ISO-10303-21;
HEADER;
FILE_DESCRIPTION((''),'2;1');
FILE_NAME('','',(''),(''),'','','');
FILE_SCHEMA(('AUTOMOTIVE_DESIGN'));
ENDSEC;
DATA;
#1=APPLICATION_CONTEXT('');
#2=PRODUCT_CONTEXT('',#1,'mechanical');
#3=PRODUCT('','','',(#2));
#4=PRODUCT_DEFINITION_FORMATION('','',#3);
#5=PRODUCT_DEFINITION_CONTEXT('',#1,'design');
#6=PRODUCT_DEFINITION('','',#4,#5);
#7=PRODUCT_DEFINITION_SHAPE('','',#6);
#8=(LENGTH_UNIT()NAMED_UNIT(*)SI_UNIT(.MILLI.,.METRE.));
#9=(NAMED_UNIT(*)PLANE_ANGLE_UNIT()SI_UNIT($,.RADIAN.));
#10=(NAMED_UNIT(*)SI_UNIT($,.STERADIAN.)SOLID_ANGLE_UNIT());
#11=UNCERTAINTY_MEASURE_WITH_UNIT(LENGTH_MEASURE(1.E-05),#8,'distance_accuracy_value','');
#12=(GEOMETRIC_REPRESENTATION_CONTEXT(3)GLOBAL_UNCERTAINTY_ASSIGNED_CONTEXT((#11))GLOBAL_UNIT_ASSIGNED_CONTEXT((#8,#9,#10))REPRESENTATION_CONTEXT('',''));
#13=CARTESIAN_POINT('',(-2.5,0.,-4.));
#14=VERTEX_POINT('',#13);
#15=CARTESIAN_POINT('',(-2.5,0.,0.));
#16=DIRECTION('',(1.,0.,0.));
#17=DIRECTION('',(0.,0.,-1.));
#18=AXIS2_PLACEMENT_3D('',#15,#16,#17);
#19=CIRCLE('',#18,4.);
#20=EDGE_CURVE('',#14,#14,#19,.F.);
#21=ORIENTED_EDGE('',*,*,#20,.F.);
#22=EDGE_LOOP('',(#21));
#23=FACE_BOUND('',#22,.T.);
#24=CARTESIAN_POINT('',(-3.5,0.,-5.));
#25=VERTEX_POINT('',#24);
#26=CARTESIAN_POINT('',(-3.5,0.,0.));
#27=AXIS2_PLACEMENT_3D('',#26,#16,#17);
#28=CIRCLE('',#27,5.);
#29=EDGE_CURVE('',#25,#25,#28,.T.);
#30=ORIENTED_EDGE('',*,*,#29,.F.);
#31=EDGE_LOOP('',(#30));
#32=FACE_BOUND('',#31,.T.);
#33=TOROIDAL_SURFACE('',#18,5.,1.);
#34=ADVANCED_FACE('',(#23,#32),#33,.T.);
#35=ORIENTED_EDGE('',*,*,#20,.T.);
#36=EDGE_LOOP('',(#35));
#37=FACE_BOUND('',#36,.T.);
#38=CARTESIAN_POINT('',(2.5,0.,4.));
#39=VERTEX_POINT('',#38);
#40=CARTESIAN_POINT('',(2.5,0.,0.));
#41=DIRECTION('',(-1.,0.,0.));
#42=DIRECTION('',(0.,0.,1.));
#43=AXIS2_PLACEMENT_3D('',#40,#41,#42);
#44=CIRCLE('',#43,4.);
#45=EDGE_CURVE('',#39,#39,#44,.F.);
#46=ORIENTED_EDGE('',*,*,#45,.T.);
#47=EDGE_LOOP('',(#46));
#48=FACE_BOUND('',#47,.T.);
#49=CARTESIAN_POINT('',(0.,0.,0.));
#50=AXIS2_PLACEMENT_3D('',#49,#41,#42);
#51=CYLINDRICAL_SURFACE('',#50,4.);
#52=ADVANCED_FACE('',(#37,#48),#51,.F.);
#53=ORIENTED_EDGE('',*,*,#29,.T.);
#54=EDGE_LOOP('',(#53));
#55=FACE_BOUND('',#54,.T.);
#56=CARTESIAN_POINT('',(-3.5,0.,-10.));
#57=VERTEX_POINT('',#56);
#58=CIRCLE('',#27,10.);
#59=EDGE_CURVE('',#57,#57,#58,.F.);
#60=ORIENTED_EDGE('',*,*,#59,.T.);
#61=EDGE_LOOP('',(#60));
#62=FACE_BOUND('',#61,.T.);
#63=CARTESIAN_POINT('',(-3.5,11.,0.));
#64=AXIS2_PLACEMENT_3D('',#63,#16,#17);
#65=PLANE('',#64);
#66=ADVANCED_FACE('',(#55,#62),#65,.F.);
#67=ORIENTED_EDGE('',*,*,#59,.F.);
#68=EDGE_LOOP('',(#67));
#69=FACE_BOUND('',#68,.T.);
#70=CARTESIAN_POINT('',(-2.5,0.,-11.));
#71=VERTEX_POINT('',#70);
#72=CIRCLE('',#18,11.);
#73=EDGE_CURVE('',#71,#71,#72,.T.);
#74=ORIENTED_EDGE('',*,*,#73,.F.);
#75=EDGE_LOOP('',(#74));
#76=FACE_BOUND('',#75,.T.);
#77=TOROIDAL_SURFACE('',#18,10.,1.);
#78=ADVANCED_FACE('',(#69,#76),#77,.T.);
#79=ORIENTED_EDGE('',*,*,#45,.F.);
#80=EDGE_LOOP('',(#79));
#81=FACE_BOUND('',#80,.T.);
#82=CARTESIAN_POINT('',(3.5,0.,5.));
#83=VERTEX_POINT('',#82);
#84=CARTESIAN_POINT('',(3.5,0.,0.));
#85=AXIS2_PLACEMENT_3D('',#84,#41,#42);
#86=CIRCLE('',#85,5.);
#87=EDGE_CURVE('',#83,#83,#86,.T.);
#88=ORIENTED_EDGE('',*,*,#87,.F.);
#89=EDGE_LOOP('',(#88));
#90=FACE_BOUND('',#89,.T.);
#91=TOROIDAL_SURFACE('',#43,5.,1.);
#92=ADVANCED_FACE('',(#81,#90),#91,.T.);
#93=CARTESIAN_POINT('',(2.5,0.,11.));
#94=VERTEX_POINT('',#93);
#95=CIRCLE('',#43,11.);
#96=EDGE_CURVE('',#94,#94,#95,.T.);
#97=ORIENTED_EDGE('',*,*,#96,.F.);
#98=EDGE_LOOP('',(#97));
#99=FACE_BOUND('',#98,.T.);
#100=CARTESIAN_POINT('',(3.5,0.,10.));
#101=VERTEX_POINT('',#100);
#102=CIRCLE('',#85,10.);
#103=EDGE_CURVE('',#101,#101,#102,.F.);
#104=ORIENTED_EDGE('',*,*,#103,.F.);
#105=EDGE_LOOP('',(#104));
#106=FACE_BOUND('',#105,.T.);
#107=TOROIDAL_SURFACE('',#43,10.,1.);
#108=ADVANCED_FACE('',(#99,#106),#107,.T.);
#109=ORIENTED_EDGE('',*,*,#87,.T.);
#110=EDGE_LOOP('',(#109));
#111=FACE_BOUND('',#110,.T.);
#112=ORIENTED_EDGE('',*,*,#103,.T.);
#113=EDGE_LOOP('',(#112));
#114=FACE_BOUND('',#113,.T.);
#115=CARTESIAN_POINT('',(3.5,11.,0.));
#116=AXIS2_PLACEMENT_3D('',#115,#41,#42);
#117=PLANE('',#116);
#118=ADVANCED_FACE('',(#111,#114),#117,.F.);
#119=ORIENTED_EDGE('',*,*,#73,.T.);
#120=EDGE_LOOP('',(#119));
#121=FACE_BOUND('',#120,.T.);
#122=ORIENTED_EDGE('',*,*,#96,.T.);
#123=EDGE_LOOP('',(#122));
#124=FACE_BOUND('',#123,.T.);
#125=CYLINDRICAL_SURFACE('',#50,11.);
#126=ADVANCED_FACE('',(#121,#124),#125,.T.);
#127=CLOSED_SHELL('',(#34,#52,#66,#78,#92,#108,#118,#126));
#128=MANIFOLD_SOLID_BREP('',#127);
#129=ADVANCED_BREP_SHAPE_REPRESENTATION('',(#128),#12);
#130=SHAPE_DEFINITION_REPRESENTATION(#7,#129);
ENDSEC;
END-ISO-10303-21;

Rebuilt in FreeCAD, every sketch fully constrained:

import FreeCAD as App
import Part
import Sketcher

V = App.Vector
Q = App.Units.Quantity


def edges_at(feature, points):
    """Names of the edges that pass closest to the given points."""
    edges = feature.Shape.Edges
    near = lambda p: min(range(len(edges)), key=lambda i: edges[i].distToShape(Part.Vertex(*p))[0])
    return sorted({f"Edge{near(p) + 1}" for p in points})


def add_polygon(sketch, points):
    """Adds a closed chain of lines whose ends are joined by coincident constraints."""
    first, n = sketch.GeometryCount, len(points)
    for a, b in zip(points, points[1:] + points[:1]):
        sketch.addGeometry(Part.LineSegment(App.Vector(*a, 0), App.Vector(*b, 0)), False)
    for i in range(n):
        sketch.addConstraint(Sketcher.Constraint("Coincident", first + i, 2, first + (i + 1) % n, 1))

doc = App.newDocument("Part")
params = doc.addObject("Spreadsheet::Sheet", "Params")
for row, (alias, value) in enumerate([
    ("sketch1_width", "7 mm"),
    ("revolution_angle", "360 deg"),
    ("fillet_radius", "1 mm"),
], start=1):
    params.set(f"A{row}", alias)
    params.set(f"B{row}", "=" + value)
    params.setAlias(f"B{row}", alias)

body = doc.addObject("PartDesign::Body", "Body")

# Sketch on XY plane
sketch1 = body.newObject("Sketcher::SketchObject", "Sketch")
sketch1.AttachmentSupport = (doc.getObject("XY_Plane"), [""])
sketch1.MapMode = "FlatFace"
add_polygon(sketch1, [(-4, 11), (-4, 4), (4, 4), (4, 11)])  # lines 0-3
sketch1.addConstraint(Sketcher.Constraint("Vertical", 0))
sketch1.addConstraint(Sketcher.Constraint("Horizontal", 1))
sketch1.addConstraint(Sketcher.Constraint("Vertical", 2))
sketch1.addConstraint(Sketcher.Constraint("Horizontal", 3))
sketch1.addConstraint(Sketcher.Constraint("Equal", 3, 0))
sketch1.addConstraint(Sketcher.Constraint("DistanceX", 1, 1, 1, 2, Q("7 mm")))
sketch1.addConstraint(Sketcher.Constraint("DistanceY", -1, 1, 0, 2, Q("4 mm")))
sketch1.addConstraint(Sketcher.Constraint("DistanceX", 0, 2, -1, 1, Q("3.5 mm")))
sketch1.setExpression("Constraints[9]", "Params.sketch1_width")
revolution = body.newObject("PartDesign::Revolution", "Revolution")
revolution.Profile = sketch1
revolution.ReferenceAxis = (sketch1, ["H_Axis"])
revolution.setExpression("Angle", "Params.revolution_angle")
doc.recompute()

fillet = body.newObject("PartDesign::Fillet", "Fillet")
fillet.Base = (revolution, edges_at(revolution, [
    (-3.5, -4, 0),
    (3.5, -4, 0),
    (3.5, -11, 0),
    (-3.5, -11, 0),
]))
fillet.setExpression("Radius", "Params.fillet_radius")

doc.recompute()
